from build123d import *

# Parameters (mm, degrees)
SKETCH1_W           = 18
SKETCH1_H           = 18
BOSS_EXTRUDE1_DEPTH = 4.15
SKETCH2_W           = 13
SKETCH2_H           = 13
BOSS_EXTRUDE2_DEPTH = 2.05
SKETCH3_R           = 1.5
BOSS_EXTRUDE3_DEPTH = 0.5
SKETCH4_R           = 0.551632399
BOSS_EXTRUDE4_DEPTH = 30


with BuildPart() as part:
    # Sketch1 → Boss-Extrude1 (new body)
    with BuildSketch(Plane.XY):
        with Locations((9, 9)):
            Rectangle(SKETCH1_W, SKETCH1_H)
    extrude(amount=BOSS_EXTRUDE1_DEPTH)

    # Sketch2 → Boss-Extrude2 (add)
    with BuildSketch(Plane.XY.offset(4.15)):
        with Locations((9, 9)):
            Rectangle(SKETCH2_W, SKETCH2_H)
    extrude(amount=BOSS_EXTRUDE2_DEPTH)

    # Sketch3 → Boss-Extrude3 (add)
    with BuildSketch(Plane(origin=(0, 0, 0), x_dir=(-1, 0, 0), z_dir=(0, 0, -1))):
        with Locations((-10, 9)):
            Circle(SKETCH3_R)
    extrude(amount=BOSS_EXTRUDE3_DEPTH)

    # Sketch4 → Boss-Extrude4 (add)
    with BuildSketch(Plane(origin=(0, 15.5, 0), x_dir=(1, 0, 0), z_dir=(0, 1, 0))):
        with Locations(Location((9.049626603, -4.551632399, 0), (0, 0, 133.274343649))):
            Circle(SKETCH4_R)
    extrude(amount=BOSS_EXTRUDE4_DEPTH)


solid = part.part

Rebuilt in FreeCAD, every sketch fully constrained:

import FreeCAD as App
import Part
import Sketcher
Q = App.Units.Quantity

doc = App.newDocument("Part")
body = doc.addObject("PartDesign::Body", "Body")

# Sketch on XY plane
sketch1 = body.newObject("Sketcher::SketchObject", "Sketch")
sketch1.AttachmentSupport = (doc.getObject("XY_Plane"), [""])
sketch1.MapMode = "FlatFace"
sketch1.addGeometry(Part.LineSegment(App.Vector(0, 18, 0), App.Vector(0, 0, 0)), False)
sketch1.addGeometry(Part.LineSegment(App.Vector(0, 0, 0), App.Vector(18, 0, 0)), False)
sketch1.addGeometry(Part.LineSegment(App.Vector(18, 0, 0), App.Vector(18, 18, 0)), False)
sketch1.addGeometry(Part.LineSegment(App.Vector(18, 18, 0), App.Vector(0, 18, 0)), False)
sketch1.addConstraint(Sketcher.Constraint("Coincident", 0, 2, 1, 1))
sketch1.addConstraint(Sketcher.Constraint("Coincident", 1, 2, 2, 1))
sketch1.addConstraint(Sketcher.Constraint("Coincident", 2, 2, 3, 1))
sketch1.addConstraint(Sketcher.Constraint("Coincident", 3, 2, 0, 1))
sketch1.addConstraint(Sketcher.Constraint("Vertical", 0))
sketch1.addConstraint(Sketcher.Constraint("Horizontal", 1))
sketch1.addConstraint(Sketcher.Constraint("Vertical", 2))
sketch1.addConstraint(Sketcher.Constraint("Horizontal", 3))
sketch1.addConstraint(Sketcher.Constraint("Coincident", 0, 2, -1, 1))
sketch1.addConstraint(Sketcher.Constraint("Equal", 3, 0))
sketch1.addConstraint(Sketcher.Constraint("DistanceX", 1, 1, 1, 2, Q("18 mm")))
pad1 = body.newObject("PartDesign::Pad", "Pad")
pad1.Profile = sketch1
pad1.Length = 4.15

# Sketch on XY plane
sketch2 = body.newObject("Sketcher::SketchObject", "Sketch001")
sketch2.AttachmentSupport = (doc.getObject("XY_Plane"), [""])
sketch2.MapMode = "FlatFace"
sketch2.AttachmentOffset = App.Placement(App.Vector(0, 0, 4.15), App.Rotation())
sketch2.addGeometry(Part.LineSegment(App.Vector(2, 16, 0), App.Vector(2, 2, 0)), False)
sketch2.addGeometry(Part.LineSegment(App.Vector(2, 2, 0), App.Vector(16, 2, 0)), False)
sketch2.addGeometry(Part.LineSegment(App.Vector(16, 2, 0), App.Vector(16, 16, 0)), False)
sketch2.addGeometry(Part.LineSegment(App.Vector(16, 16, 0), App.Vector(2, 16, 0)), False)
sketch2.addConstraint(Sketcher.Constraint("Coincident", 0, 2, 1, 1))
sketch2.addConstraint(Sketcher.Constraint("Coincident", 1, 2, 2, 1))
sketch2.addConstraint(Sketcher.Constraint("Coincident", 2, 2, 3, 1))
sketch2.addConstraint(Sketcher.Constraint("Coincident", 3, 2, 0, 1))
sketch2.addConstraint(Sketcher.Constraint("Vertical", 0))
sketch2.addConstraint(Sketcher.Constraint("Horizontal", 1))
sketch2.addConstraint(Sketcher.Constraint("Vertical", 2))
sketch2.addConstraint(Sketcher.Constraint("Horizontal", 3))
sketch2.addConstraint(Sketcher.Constraint("Equal", 3, 0))
sketch2.addConstraint(Sketcher.Constraint("DistanceX", 1, 1, 1, 2, Q("13 mm")))
sketch2.addConstraint(Sketcher.Constraint("DistanceX", -1, 1, 0, 2, Q("2.5 mm")))
sketch2.addConstraint(Sketcher.Constraint("DistanceY", -1, 1, 0, 2, Q("2.5 mm")))
pad2 = body.newObject("PartDesign::Pad", "Pad001")
pad2.Profile = sketch2
pad2.Length = 2.05

# Sketch on XY plane
sketch3 = body.newObject("Sketcher::SketchObject", "Sketch002")
sketch3.AttachmentSupport = (doc.getObject("XY_Plane"), [""])
sketch3.MapMode = "FlatFace"
sketch3.addGeometry(Part.Circle(App.Vector(10, 9, 0), App.Vector(0, 0, 1), 1.5), False)
sketch3.addConstraint(Sketcher.Constraint("Diameter", 0, Q("3 mm")))
sketch3.addConstraint(Sketcher.Constraint("DistanceX", -1, 1, 0, 3, Q("10 mm")))
sketch3.addConstraint(Sketcher.Constraint("DistanceY", -1, 1, 0, 3, Q("9 mm")))
pad3 = body.newObject("PartDesign::Pad", "Pad002")
pad3.Profile = sketch3
pad3.Length = 0.5
pad3.Reversed = True

# Sketch on XZ plane
sketch4 = body.newObject("Sketcher::SketchObject", "Sketch003")
sketch4.AttachmentSupport = (doc.getObject("XZ_Plane"), [""])
sketch4.MapMode = "FlatFace"
sketch4.AttachmentOffset = App.Placement(App.Vector(0, 0, -15.5), App.Rotation())
sketch4.addGeometry(Part.Circle(App.Vector(9, 4.6, 0), App.Vector(0, 0, 1), 0.6), False)
sketch4.addConstraint(Sketcher.Constraint("Diameter", 0, Q("1.103265 mm")))
sketch4.addConstraint(Sketcher.Constraint("DistanceX", -1, 1, 0, 3, Q("9.049627 mm")))
sketch4.addConstraint(Sketcher.Constraint("DistanceY", -1, 1, 0, 3, Q("4.551632 mm")))
pad4 = body.newObject("PartDesign::Pad", "Pad003")
pad4.Profile = sketch4
pad4.Length = 30
pad4.Reversed = True

doc.recompute()
